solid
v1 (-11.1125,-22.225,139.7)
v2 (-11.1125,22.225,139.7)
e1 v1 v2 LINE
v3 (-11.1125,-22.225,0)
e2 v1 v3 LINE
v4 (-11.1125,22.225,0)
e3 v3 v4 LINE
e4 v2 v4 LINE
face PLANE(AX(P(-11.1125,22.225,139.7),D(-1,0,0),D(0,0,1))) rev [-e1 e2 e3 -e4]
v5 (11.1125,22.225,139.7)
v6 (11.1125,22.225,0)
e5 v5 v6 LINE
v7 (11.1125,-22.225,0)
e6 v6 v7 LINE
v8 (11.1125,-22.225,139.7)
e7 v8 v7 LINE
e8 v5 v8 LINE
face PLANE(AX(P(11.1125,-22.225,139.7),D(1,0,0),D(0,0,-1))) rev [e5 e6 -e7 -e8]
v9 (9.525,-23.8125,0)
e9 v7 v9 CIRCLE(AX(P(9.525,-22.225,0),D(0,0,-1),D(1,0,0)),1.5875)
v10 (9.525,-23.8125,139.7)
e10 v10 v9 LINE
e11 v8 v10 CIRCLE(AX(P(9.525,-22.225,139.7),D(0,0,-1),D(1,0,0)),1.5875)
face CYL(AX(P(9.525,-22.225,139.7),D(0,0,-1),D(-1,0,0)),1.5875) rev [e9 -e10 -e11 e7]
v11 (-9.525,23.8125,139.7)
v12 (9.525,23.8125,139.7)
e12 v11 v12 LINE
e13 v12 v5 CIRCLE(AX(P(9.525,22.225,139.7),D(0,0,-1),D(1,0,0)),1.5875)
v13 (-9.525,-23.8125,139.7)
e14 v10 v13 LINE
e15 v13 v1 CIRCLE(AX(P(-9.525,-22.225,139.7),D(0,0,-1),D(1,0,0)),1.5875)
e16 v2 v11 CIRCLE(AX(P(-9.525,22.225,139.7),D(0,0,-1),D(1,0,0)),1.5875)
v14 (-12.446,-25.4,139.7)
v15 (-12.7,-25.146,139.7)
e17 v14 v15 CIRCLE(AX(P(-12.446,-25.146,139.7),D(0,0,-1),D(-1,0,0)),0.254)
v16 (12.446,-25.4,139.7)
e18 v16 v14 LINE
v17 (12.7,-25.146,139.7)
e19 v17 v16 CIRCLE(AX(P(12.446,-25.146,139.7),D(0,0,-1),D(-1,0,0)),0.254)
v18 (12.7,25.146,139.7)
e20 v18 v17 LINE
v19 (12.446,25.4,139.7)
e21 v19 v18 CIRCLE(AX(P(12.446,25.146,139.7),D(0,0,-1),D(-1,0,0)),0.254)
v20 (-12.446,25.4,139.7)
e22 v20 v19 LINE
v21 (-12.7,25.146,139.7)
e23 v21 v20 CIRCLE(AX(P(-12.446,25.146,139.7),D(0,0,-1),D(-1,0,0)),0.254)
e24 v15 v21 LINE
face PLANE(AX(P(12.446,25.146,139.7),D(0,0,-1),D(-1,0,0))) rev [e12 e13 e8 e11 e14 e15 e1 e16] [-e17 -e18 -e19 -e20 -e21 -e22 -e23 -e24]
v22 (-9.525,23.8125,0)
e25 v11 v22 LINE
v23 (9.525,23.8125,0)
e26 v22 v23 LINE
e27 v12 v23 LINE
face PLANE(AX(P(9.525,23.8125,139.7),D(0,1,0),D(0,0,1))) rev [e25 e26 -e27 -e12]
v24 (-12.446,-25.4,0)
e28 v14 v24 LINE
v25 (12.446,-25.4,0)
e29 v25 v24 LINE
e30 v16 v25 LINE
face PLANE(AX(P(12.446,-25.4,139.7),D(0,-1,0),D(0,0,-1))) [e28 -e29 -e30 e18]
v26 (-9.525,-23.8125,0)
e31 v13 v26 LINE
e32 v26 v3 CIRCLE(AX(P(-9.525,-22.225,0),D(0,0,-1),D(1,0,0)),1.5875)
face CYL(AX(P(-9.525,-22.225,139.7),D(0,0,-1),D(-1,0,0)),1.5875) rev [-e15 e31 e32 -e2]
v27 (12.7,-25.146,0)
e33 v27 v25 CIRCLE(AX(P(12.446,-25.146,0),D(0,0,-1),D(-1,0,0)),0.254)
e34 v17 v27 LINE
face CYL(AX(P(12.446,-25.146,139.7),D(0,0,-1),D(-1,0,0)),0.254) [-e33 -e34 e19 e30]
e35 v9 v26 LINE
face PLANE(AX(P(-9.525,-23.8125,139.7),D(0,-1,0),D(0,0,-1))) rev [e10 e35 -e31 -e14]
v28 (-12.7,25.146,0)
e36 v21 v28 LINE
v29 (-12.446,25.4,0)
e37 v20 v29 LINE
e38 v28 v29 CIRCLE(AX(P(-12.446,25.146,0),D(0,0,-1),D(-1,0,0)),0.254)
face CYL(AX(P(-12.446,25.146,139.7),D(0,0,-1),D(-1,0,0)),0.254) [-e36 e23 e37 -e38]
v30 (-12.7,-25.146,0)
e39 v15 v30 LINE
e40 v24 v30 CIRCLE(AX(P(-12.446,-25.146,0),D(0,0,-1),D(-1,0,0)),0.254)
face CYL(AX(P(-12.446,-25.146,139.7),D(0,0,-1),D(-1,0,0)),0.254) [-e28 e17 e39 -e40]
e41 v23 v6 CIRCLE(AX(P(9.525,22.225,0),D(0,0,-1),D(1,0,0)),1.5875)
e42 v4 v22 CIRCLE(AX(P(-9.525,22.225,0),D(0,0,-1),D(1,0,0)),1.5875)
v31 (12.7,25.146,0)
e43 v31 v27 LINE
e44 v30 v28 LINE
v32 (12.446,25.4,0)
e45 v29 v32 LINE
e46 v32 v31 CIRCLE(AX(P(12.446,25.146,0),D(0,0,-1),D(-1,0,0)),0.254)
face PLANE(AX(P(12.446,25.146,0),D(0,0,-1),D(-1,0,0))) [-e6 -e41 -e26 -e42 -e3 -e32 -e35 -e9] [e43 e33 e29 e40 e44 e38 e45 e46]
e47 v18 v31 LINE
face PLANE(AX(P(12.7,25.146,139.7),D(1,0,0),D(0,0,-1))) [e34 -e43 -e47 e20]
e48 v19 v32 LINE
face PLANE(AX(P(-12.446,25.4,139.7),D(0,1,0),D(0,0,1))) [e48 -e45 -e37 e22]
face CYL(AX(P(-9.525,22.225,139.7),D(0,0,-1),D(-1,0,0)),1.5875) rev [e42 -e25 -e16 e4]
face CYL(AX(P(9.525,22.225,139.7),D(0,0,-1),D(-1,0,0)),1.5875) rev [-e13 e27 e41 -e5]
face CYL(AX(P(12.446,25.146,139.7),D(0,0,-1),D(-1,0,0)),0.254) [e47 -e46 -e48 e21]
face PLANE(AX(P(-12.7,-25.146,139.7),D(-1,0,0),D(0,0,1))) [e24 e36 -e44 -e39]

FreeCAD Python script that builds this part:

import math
import FreeCAD as App
import Part
import Sketcher
from FreeCAD import Vector
Q = App.Units.Quantity

doc = App.newDocument("Part")
body = doc.addObject("PartDesign::Body", "Body")

sketch1 = body.newObject("Sketcher::SketchObject", "Sketch")
sketch1.AttachmentSupport = (doc.getObject("XY_Plane"), [""])
sketch1.MapMode = "FlatFace"
sketch1.addGeometry(Part.LineSegment(Vector(12.7, 25.15, 0), Vector(12.7, -25.15, 0)), False)
sketch1.addGeometry(Part.ArcOfCircle(Part.Circle(Vector(12.45, -25.15, 0), Vector(0, 0, 1), 0.25), math.radians(-90), math.radians(0)), False)
sketch1.addGeometry(Part.LineSegment(Vector(12.45, -25.4, 0), Vector(-12.45, -25.4, 0)), False)
sketch1.addGeometry(Part.ArcOfCircle(Part.Circle(Vector(-12.45, -25.15, 0), Vector(0, 0, 1), 0.25), math.radians(-180), math.radians(-90)), False)
sketch1.addGeometry(Part.LineSegment(Vector(-12.7, -25.15, 0), Vector(-12.7, 25.15, 0)), False)
sketch1.addGeometry(Part.ArcOfCircle(Part.Circle(Vector(-12.45, 25.15, 0), Vector(0, 0, 1), 0.25), math.radians(90), math.radians(180)), False)
sketch1.addGeometry(Part.LineSegment(Vector(-12.45, 25.4, 0), Vector(12.45, 25.4, 0)), False)
sketch1.addGeometry(Part.ArcOfCircle(Part.Circle(Vector(12.45, 25.15, 0), Vector(0, 0, 1), 0.25), math.radians(0), math.radians(90)), False)
sketch1.addGeometry(Part.ArcOfCircle(Part.Circle(Vector(9.53, -22.23, 0), Vector(0, 0, 1), 1.59), math.radians(-90), math.radians(0)), False)
sketch1.addGeometry(Part.LineSegment(Vector(11.11, -22.23, 0), Vector(11.11, 22.23, 0)), False)
sketch1.addGeometry(Part.ArcOfCircle(Part.Circle(Vector(9.53, 22.23, 0), Vector(0, 0, 1), 1.59), math.radians(0), math.radians(90)), False)
sketch1.addGeometry(Part.LineSegment(Vector(9.53, 23.81, 0), Vector(-9.53, 23.81, 0)), False)
sketch1.addGeometry(Part.ArcOfCircle(Part.Circle(Vector(-9.53, 22.23, 0), Vector(0, 0, 1), 1.59), math.radians(90), math.radians(180)), False)
sketch1.addGeometry(Part.LineSegment(Vector(-11.11, 22.23, 0), Vector(-11.11, -22.23, 0)), False)
sketch1.addGeometry(Part.ArcOfCircle(Part.Circle(Vector(-9.53, -22.23, 0), Vector(0, 0, 1), 1.59), math.radians(180), math.radians(270)), False)
sketch1.addGeometry(Part.LineSegment(Vector(-9.53, -23.81, 0), Vector(9.53, -23.81, 0)), False)
sketch1.addConstraint(Sketcher.Constraint("Tangent", 0, 2, 1, 2))
sketch1.addConstraint(Sketcher.Constraint("Tangent", 1, 1, 2, 1))
sketch1.addConstraint(Sketcher.Constraint("Tangent", 2, 2, 3, 2))
sketch1.addConstraint(Sketcher.Constraint("Tangent", 3, 1, 4, 1))
sketch1.addConstraint(Sketcher.Constraint("Tangent", 4, 2, 5, 2))
sketch1.addConstraint(Sketcher.Constraint("Tangent", 5, 1, 6, 1))
sketch1.addConstraint(Sketcher.Constraint("Tangent", 6, 2, 7, 2))
sketch1.addConstraint(Sketcher.Constraint("Tangent", 7, 1, 0, 1))
sketch1.addConstraint(Sketcher.Constraint("Tangent", 8, 2, 9, 1))
sketch1.addConstraint(Sketcher.Constraint("Tangent", 9, 2, 10, 1))
sketch1.addConstraint(Sketcher.Constraint("Tangent", 10, 2, 11, 1))
sketch1.addConstraint(Sketcher.Constraint("Tangent", 11, 2, 12, 1))
sketch1.addConstraint(Sketcher.Constraint("Tangent", 12, 2, 13, 1))
sketch1.addConstraint(Sketcher.Constraint("Tangent", 13, 2, 14, 1))
sketch1.addConstraint(Sketcher.Constraint("Tangent", 14, 2, 15, 1))
sketch1.addConstraint(Sketcher.Constraint("Tangent", 15, 2, 8, 1))
sketch1.addConstraint(Sketcher.Constraint("Vertical", 0))
sketch1.addConstraint(Sketcher.Constraint("Horizontal", 2))
sketch1.addConstraint(Sketcher.Constraint("Vertical", 4))
sketch1.addConstraint(Sketcher.Constraint("Horizontal", 6))
sketch1.addConstraint(Sketcher.Constraint("Vertical", 9))
sketch1.addConstraint(Sketcher.Constraint("Horizontal", 11))
sketch1.addConstraint(Sketcher.Constraint("Vertical", 13))
sketch1.addConstraint(Sketcher.Constraint("Horizontal", 15))
sketch1.addConstraint(Sketcher.Constraint("Equal", 1, 3))
sketch1.addConstraint(Sketcher.Constraint("Equal", 3, 5))
sketch1.addConstraint(Sketcher.Constraint("Equal", 5, 7))
sketch1.addConstraint(Sketcher.Constraint("Equal", 8, 10))
sketch1.addConstraint(Sketcher.Constraint("Equal", 10, 12))
sketch1.addConstraint(Sketcher.Constraint("Equal", 12, 14))
sketch1.addConstraint(Sketcher.Constraint("Symmetric", 1, 3, 5, 3, -1, 1))
sketch1.addConstraint(Sketcher.Constraint("Symmetric", 8, 3, 12, 3, -1, 1))
sketch1.addConstraint(Sketcher.Constraint("Radius", 1, Q("0.01 in")))
sketch1.addConstraint(Sketcher.Constraint("DistanceY", 1, 1, -1, 1, Q("1 in")))
sketch1.addConstraint(Sketcher.Constraint("Radius", 8, Q("0.0625 in")))
sketch1.addConstraint(Sketcher.Constraint("DistanceX", 2, 2, 2, 1, Q("0.98 in")))
sketch1.addConstraint(Sketcher.Constraint("DistanceX", 11, 2, 11, 1, Q("0.75 in")))
sketch1.addConstraint(Sketcher.Constraint("DistanceY", 9, 1, 9, 2, Q("1.75 in")))
pad1 = body.newObject("PartDesign::Pad", "Pad")
pad1.Profile = sketch1
pad1.Length = Q("5.5 in")

doc.recompute()
